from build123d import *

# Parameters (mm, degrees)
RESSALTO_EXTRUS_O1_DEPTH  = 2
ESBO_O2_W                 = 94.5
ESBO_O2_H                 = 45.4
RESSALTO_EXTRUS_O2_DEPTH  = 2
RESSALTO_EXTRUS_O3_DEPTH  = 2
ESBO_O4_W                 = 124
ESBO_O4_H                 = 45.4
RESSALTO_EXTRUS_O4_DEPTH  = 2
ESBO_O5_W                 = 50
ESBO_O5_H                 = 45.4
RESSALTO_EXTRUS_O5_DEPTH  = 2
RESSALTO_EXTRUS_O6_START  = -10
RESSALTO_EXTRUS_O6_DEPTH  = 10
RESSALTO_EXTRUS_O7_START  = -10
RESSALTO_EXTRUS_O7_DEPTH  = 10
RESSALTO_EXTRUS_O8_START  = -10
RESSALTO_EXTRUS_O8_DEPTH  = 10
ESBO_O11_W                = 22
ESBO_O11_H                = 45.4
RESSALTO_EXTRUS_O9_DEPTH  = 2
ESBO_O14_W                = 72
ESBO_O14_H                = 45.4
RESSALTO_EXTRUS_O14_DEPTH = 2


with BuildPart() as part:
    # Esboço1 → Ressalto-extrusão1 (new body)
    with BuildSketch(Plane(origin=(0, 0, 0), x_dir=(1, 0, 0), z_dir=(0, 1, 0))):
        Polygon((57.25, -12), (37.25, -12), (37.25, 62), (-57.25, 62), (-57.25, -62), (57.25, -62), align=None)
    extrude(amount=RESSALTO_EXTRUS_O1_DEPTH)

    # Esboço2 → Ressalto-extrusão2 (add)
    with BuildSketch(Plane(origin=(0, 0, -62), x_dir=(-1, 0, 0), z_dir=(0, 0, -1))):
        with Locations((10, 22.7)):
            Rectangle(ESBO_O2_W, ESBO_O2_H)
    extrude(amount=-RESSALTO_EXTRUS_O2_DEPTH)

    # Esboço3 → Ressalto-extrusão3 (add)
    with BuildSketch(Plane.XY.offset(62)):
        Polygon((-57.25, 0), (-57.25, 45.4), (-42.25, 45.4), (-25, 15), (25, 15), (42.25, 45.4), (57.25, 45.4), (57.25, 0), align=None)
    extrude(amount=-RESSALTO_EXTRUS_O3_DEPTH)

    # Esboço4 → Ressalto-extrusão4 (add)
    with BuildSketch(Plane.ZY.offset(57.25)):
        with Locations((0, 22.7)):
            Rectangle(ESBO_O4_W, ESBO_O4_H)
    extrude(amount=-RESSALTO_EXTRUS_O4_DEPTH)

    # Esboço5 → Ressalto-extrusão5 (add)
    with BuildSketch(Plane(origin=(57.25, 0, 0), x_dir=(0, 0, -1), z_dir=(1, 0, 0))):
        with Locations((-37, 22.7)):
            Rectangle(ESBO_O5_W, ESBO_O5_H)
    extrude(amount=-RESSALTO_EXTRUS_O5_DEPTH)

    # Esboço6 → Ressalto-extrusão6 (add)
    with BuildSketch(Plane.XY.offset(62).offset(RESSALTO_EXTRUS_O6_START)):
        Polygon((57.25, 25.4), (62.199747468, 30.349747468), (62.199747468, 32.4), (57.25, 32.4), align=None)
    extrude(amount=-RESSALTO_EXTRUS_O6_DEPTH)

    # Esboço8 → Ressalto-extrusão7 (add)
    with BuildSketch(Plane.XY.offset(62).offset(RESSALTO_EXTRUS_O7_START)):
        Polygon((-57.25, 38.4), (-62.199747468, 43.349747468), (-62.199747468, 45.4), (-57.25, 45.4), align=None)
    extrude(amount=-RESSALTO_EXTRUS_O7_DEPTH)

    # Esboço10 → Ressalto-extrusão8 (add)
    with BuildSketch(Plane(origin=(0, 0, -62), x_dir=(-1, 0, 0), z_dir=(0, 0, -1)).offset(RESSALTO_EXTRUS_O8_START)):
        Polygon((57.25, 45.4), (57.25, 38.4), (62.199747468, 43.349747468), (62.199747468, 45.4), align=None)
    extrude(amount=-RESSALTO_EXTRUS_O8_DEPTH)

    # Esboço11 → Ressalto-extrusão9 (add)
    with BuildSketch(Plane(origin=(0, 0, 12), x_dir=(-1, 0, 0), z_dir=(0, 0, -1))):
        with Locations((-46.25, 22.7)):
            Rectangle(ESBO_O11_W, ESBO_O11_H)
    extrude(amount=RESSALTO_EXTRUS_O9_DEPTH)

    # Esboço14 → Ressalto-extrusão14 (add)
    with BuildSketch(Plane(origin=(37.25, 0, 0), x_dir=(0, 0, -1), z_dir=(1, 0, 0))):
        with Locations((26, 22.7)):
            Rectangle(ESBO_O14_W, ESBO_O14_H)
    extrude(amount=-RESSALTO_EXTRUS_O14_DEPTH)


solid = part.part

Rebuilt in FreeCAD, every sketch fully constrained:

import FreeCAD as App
import Part
import Sketcher

V = App.Vector
Q = App.Units.Quantity

doc = App.newDocument("Part")
body = doc.addObject("PartDesign::Body", "Body")

sketch1 = body.newObject("Sketcher::SketchObject", "Sketch")
sketch1.AttachmentSupport = (doc.getObject("XZ_Plane"), [""])
sketch1.MapMode = "FlatFace"
sketch1.addGeometry([
    Part.LineSegment(V(57.25, 12, 0), V(37.25, 12, 0)),
    Part.LineSegment(V(37.25, 12, 0), V(37.25, -62, 0)),
    Part.LineSegment(V(37.25, -62, 0), V(-57.25, -62, 0)),
    Part.LineSegment(V(-57.25, -62, 0), V(-57.25, 62, 0)),
    Part.LineSegment(V(-57.25, 62, 0), V(57.25, 62, 0)),
    Part.LineSegment(V(57.25, 62, 0), V(57.25, 12, 0)),
], False)
sketch1.addConstraint([
    Sketcher.Constraint("Coincident", 0, 2, 1, 1),
    Sketcher.Constraint("Coincident", 1, 2, 2, 1),
    Sketcher.Constraint("Coincident", 2, 2, 3, 1),
    Sketcher.Constraint("Coincident", 3, 2, 4, 1),
    Sketcher.Constraint("Coincident", 4, 2, 5, 1),
    Sketcher.Constraint("Coincident", 5, 2, 0, 1),
    Sketcher.Constraint("Horizontal", 0),
    Sketcher.Constraint("Vertical", 1),
    Sketcher.Constraint("Horizontal", 2),
    Sketcher.Constraint("Vertical", 3),
    Sketcher.Constraint("Horizontal", 4),
    Sketcher.Constraint("Vertical", 5),
    Sketcher.Constraint("Symmetric", 2, 2, 4, 2, -1, 1),
    Sketcher.Constraint("DistanceX", 0, 2, 0, 1, Q("20 mm")),
    Sketcher.Constraint("DistanceY", 1, 2, 1, 1, Q("74 mm")),
    Sketcher.Constraint("DistanceY", 3, 1, 3, 2, Q("124 mm")),
    Sketcher.Constraint("DistanceX", 2, 2, 2, 1, Q("94.5 mm")),
])
pad1 = body.newObject("PartDesign::Pad", "Pad")
pad1.Profile = sketch1
pad1.Length = 2
pad1.Reversed = True

sketch2 = body.newObject("Sketcher::SketchObject", "Sketch001")
sketch2.AttachmentSupport = (doc.getObject("XY_Plane"), [""])
sketch2.MapMode = "FlatFace"
sketch2.AttachmentOffset = App.Placement(V(0, 0, -62), App.Rotation())
sketch2.addGeometry([
    Part.LineSegment(V(37.25, 45.4, 0), V(37.25, 0, 0)),
    Part.LineSegment(V(37.25, 0, 0), V(-57.25, 0, 0)),
    Part.LineSegment(V(-57.25, 0, 0), V(-57.25, 45.4, 0)),
    Part.LineSegment(V(-57.25, 45.4, 0), V(37.25, 45.4, 0)),
], False)
sketch2.addConstraint([
    Sketcher.Constraint("Coincident", 0, 2, 1, 1),
    Sketcher.Constraint("Coincident", 1, 2, 2, 1),
    Sketcher.Constraint("Coincident", 2, 2, 3, 1),
    Sketcher.Constraint("Coincident", 3, 2, 0, 1),
    Sketcher.Constraint("Vertical", 0),
    Sketcher.Constraint("Horizontal", 1),
    Sketcher.Constraint("Vertical", 2),
    Sketcher.Constraint("Horizontal", 3),
    Sketcher.Constraint("PointOnObject", 0, 2, -1),
    Sketcher.Constraint("DistanceX", 1, 2, 1, 1, Q("94.5 mm")),
    Sketcher.Constraint("DistanceY", 0, 2, 0, 1, Q("45.4 mm")),
    Sketcher.Constraint("DistanceX", -1, 1, 0, 2, Q("37.25 mm")),
])
pad2 = body.newObject("PartDesign::Pad", "Pad001")
pad2.Profile = sketch2
pad2.Length = 2

sketch3 = body.newObject("Sketcher::SketchObject", "Sketch002")
sketch3.AttachmentSupport = (doc.getObject("XY_Plane"), [""])
sketch3.MapMode = "FlatFace"
sketch3.AttachmentOffset = App.Placement(V(0, 0, 62), App.Rotation())
sketch3.addGeometry([
    Part.LineSegment(V(-57.25, 45.4, 0), V(-57.25, 0, 0)),
    Part.LineSegment(V(-57.25, 0, 0), V(57.25, 0, 0)),
    Part.LineSegment(V(57.25, 0, 0), V(57.25, 45.4, 0)),
    Part.LineSegment(V(57.25, 45.4, 0), V(42.25, 45.4, 0)),
    Part.LineSegment(V(42.25, 45.4, 0), V(25, 15, 0)),
    Part.LineSegment(V(25, 15, 0), V(-25, 15, 0)),
    Part.LineSegment(V(-25, 15, 0), V(-42.25, 45.4, 0)),
    Part.LineSegment(V(-42.25, 45.4, 0), V(-57.25, 45.4, 0)),
], False)
sketch3.addConstraint([
    Sketcher.Constraint("Coincident", 0, 2, 1, 1),
    Sketcher.Constraint("Coincident", 1, 2, 2, 1),
    Sketcher.Constraint("Coincident", 2, 2, 3, 1),
    Sketcher.Constraint("Coincident", 3, 2, 4, 1),
    Sketcher.Constraint("Coincident", 4, 2, 5, 1),
    Sketcher.Constraint("Coincident", 5, 2, 6, 1),
    Sketcher.Constraint("Coincident", 6, 2, 7, 1),
    Sketcher.Constraint("Coincident", 7, 2, 0, 1),
    Sketcher.Constraint("Vertical", 0),
    Sketcher.Constraint("Horizontal", 1),
    Sketcher.Constraint("Vertical", 2),
    Sketcher.Constraint("Horizontal", 3),
    Sketcher.Constraint("Horizontal", 5),
    Sketcher.Constraint("Horizontal", 7),
    Sketcher.Constraint("Symmetric", 0, 2, 1, 2, -1, 1),
    Sketcher.Constraint("Symmetric", 3, 2, 6, 2, -2),
    Sketcher.Constraint("Equal", 4, 6),
    Sketcher.Constraint("DistanceX", 3, 2, 3, 1, Q("15 mm")),
    Sketcher.Constraint("DistanceX", 5, 2, 5, 1, Q("50 mm")),
    Sketcher.Constraint("DistanceX", 1, 1, 1, 2, Q("114.5 mm")),
    Sketcher.Constraint("DistanceY", 0, 2, 0, 1, Q("45.4 mm")),
    Sketcher.Constraint("DistanceY", -1, 1, 4, 2, Q("15 mm")),
])
pad3 = body.newObject("PartDesign::Pad", "Pad002")
pad3.Profile = sketch3
pad3.Length = 2
pad3.Reversed = True

sketch4 = body.newObject("Sketcher::SketchObject", "Sketch003")
sketch4.AttachmentSupport = (doc.getObject("YZ_Plane"), [""])
sketch4.MapMode = "FlatFace"
sketch4.AttachmentOffset = App.Placement(V(0, 0, -57.25), App.Rotation())
sketch4.addGeometry([
    Part.LineSegment(V(45.4, -62, 0), V(0, -62, 0)),
    Part.LineSegment(V(0, -62, 0), V(0, 62, 0)),
    Part.LineSegment(V(0, 62, 0), V(45.4, 62, 0)),
    Part.LineSegment(V(45.4, 62, 0), V(45.4, -62, 0)),
], False)
sketch4.addConstraint([
    Sketcher.Constraint("Coincident", 0, 2, 1, 1),
    Sketcher.Constraint("Coincident", 1, 2, 2, 1),
    Sketcher.Constraint("Coincident", 2, 2, 3, 1),
    Sketcher.Constraint("Coincident", 3, 2, 0, 1),
    Sketcher.Constraint("Horizontal", 0),
    Sketcher.Constraint("Vertical", 1),
    Sketcher.Constraint("Horizontal", 2),
    Sketcher.Constraint("Vertical", 3),
    Sketcher.Constraint("Symmetric", 0, 2, 1, 2, -1, 1),
    Sketcher.Constraint("DistanceY", 1, 1, 1, 2, Q("124 mm")),
    Sketcher.Constraint("DistanceX", 0, 2, 0, 1, Q("45.4 mm")),
])
pad4 = body.newObject("PartDesign::Pad", "Pad003")
pad4.Profile = sketch4
pad4.Length = 2

sketch5 = body.newObject("Sketcher::SketchObject", "Sketch004")
sketch5.AttachmentSupport = (doc.getObject("YZ_Plane"), [""])
sketch5.MapMode = "FlatFace"
sketch5.AttachmentOffset = App.Placement(V(0, 0, 57.25), App.Rotation())
sketch5.addGeometry([
    Part.LineSegment(V(45.4, 62, 0), V(0, 62, 0)),
    Part.LineSegment(V(0, 62, 0), V(0, 12, 0)),
    Part.LineSegment(V(0, 12, 0), V(45.4, 12, 0)),
    Part.LineSegment(V(45.4, 12, 0), V(45.4, 62, 0)),
], False)
sketch5.addConstraint([
    Sketcher.Constraint("Coincident", 0, 2, 1, 1),
    Sketcher.Constraint("Coincident", 1, 2, 2, 1),
    Sketcher.Constraint("Coincident", 2, 2, 3, 1),
    Sketcher.Constraint("Coincident", 3, 2, 0, 1),
    Sketcher.Constraint("Horizontal", 0),
    Sketcher.Constraint("Vertical", 1),
    Sketcher.Constraint("Horizontal", 2),
    Sketcher.Constraint("Vertical", 3),
    Sketcher.Constraint("PointOnObject", 0, 2, -2),
    Sketcher.Constraint("DistanceY", 1, 2, 1, 1, Q("50 mm")),
    Sketcher.Constraint("DistanceX", 0, 2, 0, 1, Q("45.4 mm")),
    Sketcher.Constraint("DistanceY", -1, 1, 0, 2, Q("62 mm")),
])
pad5 = body.newObject("PartDesign::Pad", "Pad004")
pad5.Profile = sketch5
pad5.Length = 2
pad5.Reversed = True

sketch6 = body.newObject("Sketcher::SketchObject", "Sketch005")
sketch6.AttachmentSupport = (doc.getObject("XY_Plane"), [""])
sketch6.MapMode = "FlatFace"
sketch6.AttachmentOffset = App.Placement(V(0, 0, 52), App.Rotation())
sketch6.addGeometry([
    Part.LineSegment(V(57.25, 25.4, 0), V(62.199747, 30.349747, 0)),
    Part.LineSegment(V(62.199747, 30.349747, 0), V(62.199747, 32.4, 0)),
    Part.LineSegment(V(62.199747, 32.4, 0), V(57.25, 32.4, 0)),
    Part.LineSegment(V(57.25, 32.4, 0), V(57.25, 25.4, 0)),
], False)
sketch6.addConstraint([
    Sketcher.Constraint("Coincident", 0, 2, 1, 1),
    Sketcher.Constraint("Coincident", 1, 2, 2, 1),
    Sketcher.Constraint("Coincident", 2, 2, 3, 1),
    Sketcher.Constraint("Coincident", 3, 2, 0, 1),
    Sketcher.Constraint("Vertical", 1),
    Sketcher.Constraint("Horizontal", 2),
    Sketcher.Constraint("Vertical", 3),
    Sketcher.Constraint("DistanceY", 3, 2, 3, 1, Q("7 mm")),
    Sketcher.Constraint("Angle", 0, Q("45 deg")),
    Sketcher.Constraint("Distance", 0, Q("7 mm")),
    Sketcher.Constraint("DistanceY", -1, 1, 1, 2, Q("32.4 mm")),
    Sketcher.Constraint("DistanceX", -1, 1, 2, 2, Q("57.25 mm")),
])
pad6 = body.newObject("PartDesign::Pad", "Pad005")
pad6.Profile = sketch6
pad6.Length = 10
pad6.Reversed = True

sketch7 = body.newObject("Sketcher::SketchObject", "Sketch006")
sketch7.AttachmentSupport = (doc.getObject("XY_Plane"), [""])
sketch7.MapMode = "FlatFace"
sketch7.AttachmentOffset = App.Placement(V(0, 0, 52), App.Rotation())
sketch7.addGeometry([
    Part.LineSegment(V(-62.199747, 43.349747, 0), V(-57.25, 38.4, 0)),
    Part.LineSegment(V(-57.25, 38.4, 0), V(-57.25, 45.4, 0)),
    Part.LineSegment(V(-57.25, 45.4, 0), V(-62.199747, 45.4, 0)),
    Part.LineSegment(V(-62.199747, 45.4, 0), V(-62.199747, 43.349747, 0)),
], False)
sketch7.addConstraint([
    Sketcher.Constraint("Coincident", 0, 2, 1, 1),
    Sketcher.Constraint("Coincident", 1, 2, 2, 1),
    Sketcher.Constraint("Coincident", 2, 2, 3, 1),
    Sketcher.Constraint("Coincident", 3, 2, 0, 1),
    Sketcher.Constraint("Vertical", 1),
    Sketcher.Constraint("Horizontal", 2),
    Sketcher.Constraint("Vertical", 3),
    Sketcher.Constraint("DistanceY", 1, 1, 1, 2, Q("7 mm")),
    Sketcher.Constraint("Angle", 0, Q("-45 deg")),
    Sketcher.Constraint("Distance", 0, Q("7 mm")),
    Sketcher.Constraint("DistanceY", -1, 1, 0, 2, Q("38.4 mm")),
    Sketcher.Constraint("DistanceX", 0, 2, -1, 1, Q("57.25 mm")),
])
pad7 = body.newObject("PartDesign::Pad", "Pad006")
pad7.Profile = sketch7
pad7.Length = 10
pad7.Reversed = True

sketch8 = body.newObject("Sketcher::SketchObject", "Sketch007")
sketch8.AttachmentSupport = (doc.getObject("XY_Plane"), [""])
sketch8.MapMode = "FlatFace"
sketch8.AttachmentOffset = App.Placement(V(0, 0, -52), App.Rotation())
sketch8.addGeometry([
    Part.LineSegment(V(-57.25, 45.4, 0), V(-57.25, 38.4, 0)),
    Part.LineSegment(V(-57.25, 38.4, 0), V(-62.199747, 43.349747, 0)),
    Part.LineSegment(V(-62.199747, 43.349747, 0), V(-62.199747, 45.4, 0)),
    Part.LineSegment(V(-62.199747, 45.4, 0), V(-57.25, 45.4, 0)),
], False)
sketch8.addConstraint([
    Sketcher.Constraint("Coincident", 0, 2, 1, 1),
    Sketcher.Constraint("Coincident", 1, 2, 2, 1),
    Sketcher.Constraint("Coincident", 2, 2, 3, 1),
    Sketcher.Constraint("Coincident", 3, 2, 0, 1),
    Sketcher.Constraint("Vertical", 0),
    Sketcher.Constraint("Vertical", 2),
    Sketcher.Constraint("Horizontal", 3),
    Sketcher.Constraint("DistanceY", 0, 2, 0, 1, Q("7 mm")),
    Sketcher.Constraint("Angle", 1, Q("135 deg")),
    Sketcher.Constraint("Distance", 1, Q("7 mm")),
    Sketcher.Constraint("DistanceY", -1, 1, 0, 2, Q("38.4 mm")),
    Sketcher.Constraint("DistanceX", 0, 2, -1, 1, Q("57.25 mm")),
])
pad8 = body.newObject("PartDesign::Pad", "Pad007")
pad8.Profile = sketch8
pad8.Length = 10

sketch9 = body.newObject("Sketcher::SketchObject", "Sketch008")
sketch9.AttachmentSupport = (doc.getObject("XY_Plane"), [""])
sketch9.MapMode = "FlatFace"
sketch9.AttachmentOffset = App.Placement(V(0, 0, 12), App.Rotation())
sketch9.addGeometry([
    Part.LineSegment(V(57.25, 45.4, 0), V(57.25, 0, 0)),
    Part.LineSegment(V(57.25, 0, 0), V(35.25, 0, 0)),
    Part.LineSegment(V(35.25, 0, 0), V(35.25, 45.4, 0)),
    Part.LineSegment(V(35.25, 45.4, 0), V(57.25, 45.4, 0)),
], False)
sketch9.addConstraint([
    Sketcher.Constraint("Coincident", 0, 2, 1, 1),
    Sketcher.Constraint("Coincident", 1, 2, 2, 1),
    Sketcher.Constraint("Coincident", 2, 2, 3, 1),
    Sketcher.Constraint("Coincident", 3, 2, 0, 1),
    Sketcher.Constraint("Vertical", 0),
    Sketcher.Constraint("Horizontal", 1),
    Sketcher.Constraint("Vertical", 2),
    Sketcher.Constraint("Horizontal", 3),
    Sketcher.Constraint("PointOnObject", 0, 2, -1),
    Sketcher.Constraint("DistanceX", 1, 2, 1, 1, Q("22 mm")),
    Sketcher.Constraint("DistanceY", 0, 2, 0, 1, Q("45.4 mm")),
    Sketcher.Constraint("DistanceX", -1, 1, 0, 2, Q("57.25 mm")),
])
pad9 = body.newObject("PartDesign::Pad", "Pad008")
pad9.Profile = sketch9
pad9.Length = 2
pad9.Reversed = True

sketch10 = body.newObject("Sketcher::SketchObject", "Sketch009")
sketch10.AttachmentSupport = (doc.getObject("YZ_Plane"), [""])
sketch10.MapMode = "FlatFace"
sketch10.AttachmentOffset = App.Placement(V(0, 0, 37.25), App.Rotation())
sketch10.addGeometry([
    Part.LineSegment(V(45.4, 10, 0), V(0, 10, 0)),
    Part.LineSegment(V(0, 10, 0), V(0, -62, 0)),
    Part.LineSegment(V(0, -62, 0), V(45.4, -62, 0)),
    Part.LineSegment(V(45.4, -62, 0), V(45.4, 10, 0)),
], False)
sketch10.addConstraint([
    Sketcher.Constraint("Coincident", 0, 2, 1, 1),
    Sketcher.Constraint("Coincident", 1, 2, 2, 1),
    Sketcher.Constraint("Coincident", 2, 2, 3, 1),
    Sketcher.Constraint("Coincident", 3, 2, 0, 1),
    Sketcher.Constraint("Horizontal", 0),
    Sketcher.Constraint("Vertical", 1),
    Sketcher.Constraint("Horizontal", 2),
    Sketcher.Constraint("Vertical", 3),
    Sketcher.Constraint("PointOnObject", 0, 2, -2),
    Sketcher.Constraint("DistanceY", 1, 2, 1, 1, Q("72 mm")),
    Sketcher.Constraint("DistanceX", 0, 2, 0, 1, Q("45.4 mm")),
    Sketcher.Constraint("DistanceY", -1, 1, 0, 2, Q("10 mm")),
])
pad10 = body.newObject("PartDesign::Pad", "Pad009")
pad10.Profile = sketch10
pad10.Length = 2
pad10.Reversed = True

doc.recompute()
